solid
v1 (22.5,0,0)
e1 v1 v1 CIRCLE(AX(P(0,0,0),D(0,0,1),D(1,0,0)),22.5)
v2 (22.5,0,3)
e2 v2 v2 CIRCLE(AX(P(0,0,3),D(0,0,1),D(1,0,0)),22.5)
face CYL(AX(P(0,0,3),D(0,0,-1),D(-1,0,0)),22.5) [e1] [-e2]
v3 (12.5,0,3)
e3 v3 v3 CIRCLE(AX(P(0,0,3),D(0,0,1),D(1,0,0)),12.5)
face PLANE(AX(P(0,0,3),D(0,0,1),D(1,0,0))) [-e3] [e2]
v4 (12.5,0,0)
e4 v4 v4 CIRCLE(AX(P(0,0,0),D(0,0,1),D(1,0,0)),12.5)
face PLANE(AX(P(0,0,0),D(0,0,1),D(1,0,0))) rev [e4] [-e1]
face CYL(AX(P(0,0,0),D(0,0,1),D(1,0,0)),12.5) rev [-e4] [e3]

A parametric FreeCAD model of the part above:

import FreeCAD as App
import Part
import Sketcher

doc = App.newDocument("Part")
body = doc.addObject("PartDesign::Body", "Body")

sketch1 = body.newObject("Sketcher::SketchObject", "Sketch")
sketch1.AttachmentSupport = (doc.getObject("XY_Plane"), [""])
sketch1.MapMode = "FlatFace"
sketch1.addGeometry(Part.Circle(App.Vector(0, 0, 0), App.Vector(0, 0, 1), 22), False)
sketch1.addConstraint([
    Sketcher.Constraint("Coincident", 0, 3, -1, 1),
    Sketcher.Constraint("Diameter", 0, 45.0),
])
pad1 = body.newObject("PartDesign::Pad", "Pad")
pad1.Profile = sketch1
pad1.Length = 3

sketch2 = body.newObject("Sketcher::SketchObject", "Sketch001")
sketch2.AttachmentSupport = (doc.getObject("XY_Plane"), [""])
sketch2.MapMode = "FlatFace"
sketch2.AttachmentOffset = App.Placement(App.Vector(0, 0, 3), App.Rotation())
sketch2.addGeometry(Part.Circle(App.Vector(0, 0, 0), App.Vector(0, 0, 1), 12), False)
sketch2.addConstraint([
    Sketcher.Constraint("Coincident", 0, 3, -1, 1),
    Sketcher.Constraint("Diameter", 0, 25.0),
])
pocket1 = body.newObject("PartDesign::Pocket", "Pocket")
pocket1.Profile = sketch2
pocket1.Length = 3

doc.recompute()
